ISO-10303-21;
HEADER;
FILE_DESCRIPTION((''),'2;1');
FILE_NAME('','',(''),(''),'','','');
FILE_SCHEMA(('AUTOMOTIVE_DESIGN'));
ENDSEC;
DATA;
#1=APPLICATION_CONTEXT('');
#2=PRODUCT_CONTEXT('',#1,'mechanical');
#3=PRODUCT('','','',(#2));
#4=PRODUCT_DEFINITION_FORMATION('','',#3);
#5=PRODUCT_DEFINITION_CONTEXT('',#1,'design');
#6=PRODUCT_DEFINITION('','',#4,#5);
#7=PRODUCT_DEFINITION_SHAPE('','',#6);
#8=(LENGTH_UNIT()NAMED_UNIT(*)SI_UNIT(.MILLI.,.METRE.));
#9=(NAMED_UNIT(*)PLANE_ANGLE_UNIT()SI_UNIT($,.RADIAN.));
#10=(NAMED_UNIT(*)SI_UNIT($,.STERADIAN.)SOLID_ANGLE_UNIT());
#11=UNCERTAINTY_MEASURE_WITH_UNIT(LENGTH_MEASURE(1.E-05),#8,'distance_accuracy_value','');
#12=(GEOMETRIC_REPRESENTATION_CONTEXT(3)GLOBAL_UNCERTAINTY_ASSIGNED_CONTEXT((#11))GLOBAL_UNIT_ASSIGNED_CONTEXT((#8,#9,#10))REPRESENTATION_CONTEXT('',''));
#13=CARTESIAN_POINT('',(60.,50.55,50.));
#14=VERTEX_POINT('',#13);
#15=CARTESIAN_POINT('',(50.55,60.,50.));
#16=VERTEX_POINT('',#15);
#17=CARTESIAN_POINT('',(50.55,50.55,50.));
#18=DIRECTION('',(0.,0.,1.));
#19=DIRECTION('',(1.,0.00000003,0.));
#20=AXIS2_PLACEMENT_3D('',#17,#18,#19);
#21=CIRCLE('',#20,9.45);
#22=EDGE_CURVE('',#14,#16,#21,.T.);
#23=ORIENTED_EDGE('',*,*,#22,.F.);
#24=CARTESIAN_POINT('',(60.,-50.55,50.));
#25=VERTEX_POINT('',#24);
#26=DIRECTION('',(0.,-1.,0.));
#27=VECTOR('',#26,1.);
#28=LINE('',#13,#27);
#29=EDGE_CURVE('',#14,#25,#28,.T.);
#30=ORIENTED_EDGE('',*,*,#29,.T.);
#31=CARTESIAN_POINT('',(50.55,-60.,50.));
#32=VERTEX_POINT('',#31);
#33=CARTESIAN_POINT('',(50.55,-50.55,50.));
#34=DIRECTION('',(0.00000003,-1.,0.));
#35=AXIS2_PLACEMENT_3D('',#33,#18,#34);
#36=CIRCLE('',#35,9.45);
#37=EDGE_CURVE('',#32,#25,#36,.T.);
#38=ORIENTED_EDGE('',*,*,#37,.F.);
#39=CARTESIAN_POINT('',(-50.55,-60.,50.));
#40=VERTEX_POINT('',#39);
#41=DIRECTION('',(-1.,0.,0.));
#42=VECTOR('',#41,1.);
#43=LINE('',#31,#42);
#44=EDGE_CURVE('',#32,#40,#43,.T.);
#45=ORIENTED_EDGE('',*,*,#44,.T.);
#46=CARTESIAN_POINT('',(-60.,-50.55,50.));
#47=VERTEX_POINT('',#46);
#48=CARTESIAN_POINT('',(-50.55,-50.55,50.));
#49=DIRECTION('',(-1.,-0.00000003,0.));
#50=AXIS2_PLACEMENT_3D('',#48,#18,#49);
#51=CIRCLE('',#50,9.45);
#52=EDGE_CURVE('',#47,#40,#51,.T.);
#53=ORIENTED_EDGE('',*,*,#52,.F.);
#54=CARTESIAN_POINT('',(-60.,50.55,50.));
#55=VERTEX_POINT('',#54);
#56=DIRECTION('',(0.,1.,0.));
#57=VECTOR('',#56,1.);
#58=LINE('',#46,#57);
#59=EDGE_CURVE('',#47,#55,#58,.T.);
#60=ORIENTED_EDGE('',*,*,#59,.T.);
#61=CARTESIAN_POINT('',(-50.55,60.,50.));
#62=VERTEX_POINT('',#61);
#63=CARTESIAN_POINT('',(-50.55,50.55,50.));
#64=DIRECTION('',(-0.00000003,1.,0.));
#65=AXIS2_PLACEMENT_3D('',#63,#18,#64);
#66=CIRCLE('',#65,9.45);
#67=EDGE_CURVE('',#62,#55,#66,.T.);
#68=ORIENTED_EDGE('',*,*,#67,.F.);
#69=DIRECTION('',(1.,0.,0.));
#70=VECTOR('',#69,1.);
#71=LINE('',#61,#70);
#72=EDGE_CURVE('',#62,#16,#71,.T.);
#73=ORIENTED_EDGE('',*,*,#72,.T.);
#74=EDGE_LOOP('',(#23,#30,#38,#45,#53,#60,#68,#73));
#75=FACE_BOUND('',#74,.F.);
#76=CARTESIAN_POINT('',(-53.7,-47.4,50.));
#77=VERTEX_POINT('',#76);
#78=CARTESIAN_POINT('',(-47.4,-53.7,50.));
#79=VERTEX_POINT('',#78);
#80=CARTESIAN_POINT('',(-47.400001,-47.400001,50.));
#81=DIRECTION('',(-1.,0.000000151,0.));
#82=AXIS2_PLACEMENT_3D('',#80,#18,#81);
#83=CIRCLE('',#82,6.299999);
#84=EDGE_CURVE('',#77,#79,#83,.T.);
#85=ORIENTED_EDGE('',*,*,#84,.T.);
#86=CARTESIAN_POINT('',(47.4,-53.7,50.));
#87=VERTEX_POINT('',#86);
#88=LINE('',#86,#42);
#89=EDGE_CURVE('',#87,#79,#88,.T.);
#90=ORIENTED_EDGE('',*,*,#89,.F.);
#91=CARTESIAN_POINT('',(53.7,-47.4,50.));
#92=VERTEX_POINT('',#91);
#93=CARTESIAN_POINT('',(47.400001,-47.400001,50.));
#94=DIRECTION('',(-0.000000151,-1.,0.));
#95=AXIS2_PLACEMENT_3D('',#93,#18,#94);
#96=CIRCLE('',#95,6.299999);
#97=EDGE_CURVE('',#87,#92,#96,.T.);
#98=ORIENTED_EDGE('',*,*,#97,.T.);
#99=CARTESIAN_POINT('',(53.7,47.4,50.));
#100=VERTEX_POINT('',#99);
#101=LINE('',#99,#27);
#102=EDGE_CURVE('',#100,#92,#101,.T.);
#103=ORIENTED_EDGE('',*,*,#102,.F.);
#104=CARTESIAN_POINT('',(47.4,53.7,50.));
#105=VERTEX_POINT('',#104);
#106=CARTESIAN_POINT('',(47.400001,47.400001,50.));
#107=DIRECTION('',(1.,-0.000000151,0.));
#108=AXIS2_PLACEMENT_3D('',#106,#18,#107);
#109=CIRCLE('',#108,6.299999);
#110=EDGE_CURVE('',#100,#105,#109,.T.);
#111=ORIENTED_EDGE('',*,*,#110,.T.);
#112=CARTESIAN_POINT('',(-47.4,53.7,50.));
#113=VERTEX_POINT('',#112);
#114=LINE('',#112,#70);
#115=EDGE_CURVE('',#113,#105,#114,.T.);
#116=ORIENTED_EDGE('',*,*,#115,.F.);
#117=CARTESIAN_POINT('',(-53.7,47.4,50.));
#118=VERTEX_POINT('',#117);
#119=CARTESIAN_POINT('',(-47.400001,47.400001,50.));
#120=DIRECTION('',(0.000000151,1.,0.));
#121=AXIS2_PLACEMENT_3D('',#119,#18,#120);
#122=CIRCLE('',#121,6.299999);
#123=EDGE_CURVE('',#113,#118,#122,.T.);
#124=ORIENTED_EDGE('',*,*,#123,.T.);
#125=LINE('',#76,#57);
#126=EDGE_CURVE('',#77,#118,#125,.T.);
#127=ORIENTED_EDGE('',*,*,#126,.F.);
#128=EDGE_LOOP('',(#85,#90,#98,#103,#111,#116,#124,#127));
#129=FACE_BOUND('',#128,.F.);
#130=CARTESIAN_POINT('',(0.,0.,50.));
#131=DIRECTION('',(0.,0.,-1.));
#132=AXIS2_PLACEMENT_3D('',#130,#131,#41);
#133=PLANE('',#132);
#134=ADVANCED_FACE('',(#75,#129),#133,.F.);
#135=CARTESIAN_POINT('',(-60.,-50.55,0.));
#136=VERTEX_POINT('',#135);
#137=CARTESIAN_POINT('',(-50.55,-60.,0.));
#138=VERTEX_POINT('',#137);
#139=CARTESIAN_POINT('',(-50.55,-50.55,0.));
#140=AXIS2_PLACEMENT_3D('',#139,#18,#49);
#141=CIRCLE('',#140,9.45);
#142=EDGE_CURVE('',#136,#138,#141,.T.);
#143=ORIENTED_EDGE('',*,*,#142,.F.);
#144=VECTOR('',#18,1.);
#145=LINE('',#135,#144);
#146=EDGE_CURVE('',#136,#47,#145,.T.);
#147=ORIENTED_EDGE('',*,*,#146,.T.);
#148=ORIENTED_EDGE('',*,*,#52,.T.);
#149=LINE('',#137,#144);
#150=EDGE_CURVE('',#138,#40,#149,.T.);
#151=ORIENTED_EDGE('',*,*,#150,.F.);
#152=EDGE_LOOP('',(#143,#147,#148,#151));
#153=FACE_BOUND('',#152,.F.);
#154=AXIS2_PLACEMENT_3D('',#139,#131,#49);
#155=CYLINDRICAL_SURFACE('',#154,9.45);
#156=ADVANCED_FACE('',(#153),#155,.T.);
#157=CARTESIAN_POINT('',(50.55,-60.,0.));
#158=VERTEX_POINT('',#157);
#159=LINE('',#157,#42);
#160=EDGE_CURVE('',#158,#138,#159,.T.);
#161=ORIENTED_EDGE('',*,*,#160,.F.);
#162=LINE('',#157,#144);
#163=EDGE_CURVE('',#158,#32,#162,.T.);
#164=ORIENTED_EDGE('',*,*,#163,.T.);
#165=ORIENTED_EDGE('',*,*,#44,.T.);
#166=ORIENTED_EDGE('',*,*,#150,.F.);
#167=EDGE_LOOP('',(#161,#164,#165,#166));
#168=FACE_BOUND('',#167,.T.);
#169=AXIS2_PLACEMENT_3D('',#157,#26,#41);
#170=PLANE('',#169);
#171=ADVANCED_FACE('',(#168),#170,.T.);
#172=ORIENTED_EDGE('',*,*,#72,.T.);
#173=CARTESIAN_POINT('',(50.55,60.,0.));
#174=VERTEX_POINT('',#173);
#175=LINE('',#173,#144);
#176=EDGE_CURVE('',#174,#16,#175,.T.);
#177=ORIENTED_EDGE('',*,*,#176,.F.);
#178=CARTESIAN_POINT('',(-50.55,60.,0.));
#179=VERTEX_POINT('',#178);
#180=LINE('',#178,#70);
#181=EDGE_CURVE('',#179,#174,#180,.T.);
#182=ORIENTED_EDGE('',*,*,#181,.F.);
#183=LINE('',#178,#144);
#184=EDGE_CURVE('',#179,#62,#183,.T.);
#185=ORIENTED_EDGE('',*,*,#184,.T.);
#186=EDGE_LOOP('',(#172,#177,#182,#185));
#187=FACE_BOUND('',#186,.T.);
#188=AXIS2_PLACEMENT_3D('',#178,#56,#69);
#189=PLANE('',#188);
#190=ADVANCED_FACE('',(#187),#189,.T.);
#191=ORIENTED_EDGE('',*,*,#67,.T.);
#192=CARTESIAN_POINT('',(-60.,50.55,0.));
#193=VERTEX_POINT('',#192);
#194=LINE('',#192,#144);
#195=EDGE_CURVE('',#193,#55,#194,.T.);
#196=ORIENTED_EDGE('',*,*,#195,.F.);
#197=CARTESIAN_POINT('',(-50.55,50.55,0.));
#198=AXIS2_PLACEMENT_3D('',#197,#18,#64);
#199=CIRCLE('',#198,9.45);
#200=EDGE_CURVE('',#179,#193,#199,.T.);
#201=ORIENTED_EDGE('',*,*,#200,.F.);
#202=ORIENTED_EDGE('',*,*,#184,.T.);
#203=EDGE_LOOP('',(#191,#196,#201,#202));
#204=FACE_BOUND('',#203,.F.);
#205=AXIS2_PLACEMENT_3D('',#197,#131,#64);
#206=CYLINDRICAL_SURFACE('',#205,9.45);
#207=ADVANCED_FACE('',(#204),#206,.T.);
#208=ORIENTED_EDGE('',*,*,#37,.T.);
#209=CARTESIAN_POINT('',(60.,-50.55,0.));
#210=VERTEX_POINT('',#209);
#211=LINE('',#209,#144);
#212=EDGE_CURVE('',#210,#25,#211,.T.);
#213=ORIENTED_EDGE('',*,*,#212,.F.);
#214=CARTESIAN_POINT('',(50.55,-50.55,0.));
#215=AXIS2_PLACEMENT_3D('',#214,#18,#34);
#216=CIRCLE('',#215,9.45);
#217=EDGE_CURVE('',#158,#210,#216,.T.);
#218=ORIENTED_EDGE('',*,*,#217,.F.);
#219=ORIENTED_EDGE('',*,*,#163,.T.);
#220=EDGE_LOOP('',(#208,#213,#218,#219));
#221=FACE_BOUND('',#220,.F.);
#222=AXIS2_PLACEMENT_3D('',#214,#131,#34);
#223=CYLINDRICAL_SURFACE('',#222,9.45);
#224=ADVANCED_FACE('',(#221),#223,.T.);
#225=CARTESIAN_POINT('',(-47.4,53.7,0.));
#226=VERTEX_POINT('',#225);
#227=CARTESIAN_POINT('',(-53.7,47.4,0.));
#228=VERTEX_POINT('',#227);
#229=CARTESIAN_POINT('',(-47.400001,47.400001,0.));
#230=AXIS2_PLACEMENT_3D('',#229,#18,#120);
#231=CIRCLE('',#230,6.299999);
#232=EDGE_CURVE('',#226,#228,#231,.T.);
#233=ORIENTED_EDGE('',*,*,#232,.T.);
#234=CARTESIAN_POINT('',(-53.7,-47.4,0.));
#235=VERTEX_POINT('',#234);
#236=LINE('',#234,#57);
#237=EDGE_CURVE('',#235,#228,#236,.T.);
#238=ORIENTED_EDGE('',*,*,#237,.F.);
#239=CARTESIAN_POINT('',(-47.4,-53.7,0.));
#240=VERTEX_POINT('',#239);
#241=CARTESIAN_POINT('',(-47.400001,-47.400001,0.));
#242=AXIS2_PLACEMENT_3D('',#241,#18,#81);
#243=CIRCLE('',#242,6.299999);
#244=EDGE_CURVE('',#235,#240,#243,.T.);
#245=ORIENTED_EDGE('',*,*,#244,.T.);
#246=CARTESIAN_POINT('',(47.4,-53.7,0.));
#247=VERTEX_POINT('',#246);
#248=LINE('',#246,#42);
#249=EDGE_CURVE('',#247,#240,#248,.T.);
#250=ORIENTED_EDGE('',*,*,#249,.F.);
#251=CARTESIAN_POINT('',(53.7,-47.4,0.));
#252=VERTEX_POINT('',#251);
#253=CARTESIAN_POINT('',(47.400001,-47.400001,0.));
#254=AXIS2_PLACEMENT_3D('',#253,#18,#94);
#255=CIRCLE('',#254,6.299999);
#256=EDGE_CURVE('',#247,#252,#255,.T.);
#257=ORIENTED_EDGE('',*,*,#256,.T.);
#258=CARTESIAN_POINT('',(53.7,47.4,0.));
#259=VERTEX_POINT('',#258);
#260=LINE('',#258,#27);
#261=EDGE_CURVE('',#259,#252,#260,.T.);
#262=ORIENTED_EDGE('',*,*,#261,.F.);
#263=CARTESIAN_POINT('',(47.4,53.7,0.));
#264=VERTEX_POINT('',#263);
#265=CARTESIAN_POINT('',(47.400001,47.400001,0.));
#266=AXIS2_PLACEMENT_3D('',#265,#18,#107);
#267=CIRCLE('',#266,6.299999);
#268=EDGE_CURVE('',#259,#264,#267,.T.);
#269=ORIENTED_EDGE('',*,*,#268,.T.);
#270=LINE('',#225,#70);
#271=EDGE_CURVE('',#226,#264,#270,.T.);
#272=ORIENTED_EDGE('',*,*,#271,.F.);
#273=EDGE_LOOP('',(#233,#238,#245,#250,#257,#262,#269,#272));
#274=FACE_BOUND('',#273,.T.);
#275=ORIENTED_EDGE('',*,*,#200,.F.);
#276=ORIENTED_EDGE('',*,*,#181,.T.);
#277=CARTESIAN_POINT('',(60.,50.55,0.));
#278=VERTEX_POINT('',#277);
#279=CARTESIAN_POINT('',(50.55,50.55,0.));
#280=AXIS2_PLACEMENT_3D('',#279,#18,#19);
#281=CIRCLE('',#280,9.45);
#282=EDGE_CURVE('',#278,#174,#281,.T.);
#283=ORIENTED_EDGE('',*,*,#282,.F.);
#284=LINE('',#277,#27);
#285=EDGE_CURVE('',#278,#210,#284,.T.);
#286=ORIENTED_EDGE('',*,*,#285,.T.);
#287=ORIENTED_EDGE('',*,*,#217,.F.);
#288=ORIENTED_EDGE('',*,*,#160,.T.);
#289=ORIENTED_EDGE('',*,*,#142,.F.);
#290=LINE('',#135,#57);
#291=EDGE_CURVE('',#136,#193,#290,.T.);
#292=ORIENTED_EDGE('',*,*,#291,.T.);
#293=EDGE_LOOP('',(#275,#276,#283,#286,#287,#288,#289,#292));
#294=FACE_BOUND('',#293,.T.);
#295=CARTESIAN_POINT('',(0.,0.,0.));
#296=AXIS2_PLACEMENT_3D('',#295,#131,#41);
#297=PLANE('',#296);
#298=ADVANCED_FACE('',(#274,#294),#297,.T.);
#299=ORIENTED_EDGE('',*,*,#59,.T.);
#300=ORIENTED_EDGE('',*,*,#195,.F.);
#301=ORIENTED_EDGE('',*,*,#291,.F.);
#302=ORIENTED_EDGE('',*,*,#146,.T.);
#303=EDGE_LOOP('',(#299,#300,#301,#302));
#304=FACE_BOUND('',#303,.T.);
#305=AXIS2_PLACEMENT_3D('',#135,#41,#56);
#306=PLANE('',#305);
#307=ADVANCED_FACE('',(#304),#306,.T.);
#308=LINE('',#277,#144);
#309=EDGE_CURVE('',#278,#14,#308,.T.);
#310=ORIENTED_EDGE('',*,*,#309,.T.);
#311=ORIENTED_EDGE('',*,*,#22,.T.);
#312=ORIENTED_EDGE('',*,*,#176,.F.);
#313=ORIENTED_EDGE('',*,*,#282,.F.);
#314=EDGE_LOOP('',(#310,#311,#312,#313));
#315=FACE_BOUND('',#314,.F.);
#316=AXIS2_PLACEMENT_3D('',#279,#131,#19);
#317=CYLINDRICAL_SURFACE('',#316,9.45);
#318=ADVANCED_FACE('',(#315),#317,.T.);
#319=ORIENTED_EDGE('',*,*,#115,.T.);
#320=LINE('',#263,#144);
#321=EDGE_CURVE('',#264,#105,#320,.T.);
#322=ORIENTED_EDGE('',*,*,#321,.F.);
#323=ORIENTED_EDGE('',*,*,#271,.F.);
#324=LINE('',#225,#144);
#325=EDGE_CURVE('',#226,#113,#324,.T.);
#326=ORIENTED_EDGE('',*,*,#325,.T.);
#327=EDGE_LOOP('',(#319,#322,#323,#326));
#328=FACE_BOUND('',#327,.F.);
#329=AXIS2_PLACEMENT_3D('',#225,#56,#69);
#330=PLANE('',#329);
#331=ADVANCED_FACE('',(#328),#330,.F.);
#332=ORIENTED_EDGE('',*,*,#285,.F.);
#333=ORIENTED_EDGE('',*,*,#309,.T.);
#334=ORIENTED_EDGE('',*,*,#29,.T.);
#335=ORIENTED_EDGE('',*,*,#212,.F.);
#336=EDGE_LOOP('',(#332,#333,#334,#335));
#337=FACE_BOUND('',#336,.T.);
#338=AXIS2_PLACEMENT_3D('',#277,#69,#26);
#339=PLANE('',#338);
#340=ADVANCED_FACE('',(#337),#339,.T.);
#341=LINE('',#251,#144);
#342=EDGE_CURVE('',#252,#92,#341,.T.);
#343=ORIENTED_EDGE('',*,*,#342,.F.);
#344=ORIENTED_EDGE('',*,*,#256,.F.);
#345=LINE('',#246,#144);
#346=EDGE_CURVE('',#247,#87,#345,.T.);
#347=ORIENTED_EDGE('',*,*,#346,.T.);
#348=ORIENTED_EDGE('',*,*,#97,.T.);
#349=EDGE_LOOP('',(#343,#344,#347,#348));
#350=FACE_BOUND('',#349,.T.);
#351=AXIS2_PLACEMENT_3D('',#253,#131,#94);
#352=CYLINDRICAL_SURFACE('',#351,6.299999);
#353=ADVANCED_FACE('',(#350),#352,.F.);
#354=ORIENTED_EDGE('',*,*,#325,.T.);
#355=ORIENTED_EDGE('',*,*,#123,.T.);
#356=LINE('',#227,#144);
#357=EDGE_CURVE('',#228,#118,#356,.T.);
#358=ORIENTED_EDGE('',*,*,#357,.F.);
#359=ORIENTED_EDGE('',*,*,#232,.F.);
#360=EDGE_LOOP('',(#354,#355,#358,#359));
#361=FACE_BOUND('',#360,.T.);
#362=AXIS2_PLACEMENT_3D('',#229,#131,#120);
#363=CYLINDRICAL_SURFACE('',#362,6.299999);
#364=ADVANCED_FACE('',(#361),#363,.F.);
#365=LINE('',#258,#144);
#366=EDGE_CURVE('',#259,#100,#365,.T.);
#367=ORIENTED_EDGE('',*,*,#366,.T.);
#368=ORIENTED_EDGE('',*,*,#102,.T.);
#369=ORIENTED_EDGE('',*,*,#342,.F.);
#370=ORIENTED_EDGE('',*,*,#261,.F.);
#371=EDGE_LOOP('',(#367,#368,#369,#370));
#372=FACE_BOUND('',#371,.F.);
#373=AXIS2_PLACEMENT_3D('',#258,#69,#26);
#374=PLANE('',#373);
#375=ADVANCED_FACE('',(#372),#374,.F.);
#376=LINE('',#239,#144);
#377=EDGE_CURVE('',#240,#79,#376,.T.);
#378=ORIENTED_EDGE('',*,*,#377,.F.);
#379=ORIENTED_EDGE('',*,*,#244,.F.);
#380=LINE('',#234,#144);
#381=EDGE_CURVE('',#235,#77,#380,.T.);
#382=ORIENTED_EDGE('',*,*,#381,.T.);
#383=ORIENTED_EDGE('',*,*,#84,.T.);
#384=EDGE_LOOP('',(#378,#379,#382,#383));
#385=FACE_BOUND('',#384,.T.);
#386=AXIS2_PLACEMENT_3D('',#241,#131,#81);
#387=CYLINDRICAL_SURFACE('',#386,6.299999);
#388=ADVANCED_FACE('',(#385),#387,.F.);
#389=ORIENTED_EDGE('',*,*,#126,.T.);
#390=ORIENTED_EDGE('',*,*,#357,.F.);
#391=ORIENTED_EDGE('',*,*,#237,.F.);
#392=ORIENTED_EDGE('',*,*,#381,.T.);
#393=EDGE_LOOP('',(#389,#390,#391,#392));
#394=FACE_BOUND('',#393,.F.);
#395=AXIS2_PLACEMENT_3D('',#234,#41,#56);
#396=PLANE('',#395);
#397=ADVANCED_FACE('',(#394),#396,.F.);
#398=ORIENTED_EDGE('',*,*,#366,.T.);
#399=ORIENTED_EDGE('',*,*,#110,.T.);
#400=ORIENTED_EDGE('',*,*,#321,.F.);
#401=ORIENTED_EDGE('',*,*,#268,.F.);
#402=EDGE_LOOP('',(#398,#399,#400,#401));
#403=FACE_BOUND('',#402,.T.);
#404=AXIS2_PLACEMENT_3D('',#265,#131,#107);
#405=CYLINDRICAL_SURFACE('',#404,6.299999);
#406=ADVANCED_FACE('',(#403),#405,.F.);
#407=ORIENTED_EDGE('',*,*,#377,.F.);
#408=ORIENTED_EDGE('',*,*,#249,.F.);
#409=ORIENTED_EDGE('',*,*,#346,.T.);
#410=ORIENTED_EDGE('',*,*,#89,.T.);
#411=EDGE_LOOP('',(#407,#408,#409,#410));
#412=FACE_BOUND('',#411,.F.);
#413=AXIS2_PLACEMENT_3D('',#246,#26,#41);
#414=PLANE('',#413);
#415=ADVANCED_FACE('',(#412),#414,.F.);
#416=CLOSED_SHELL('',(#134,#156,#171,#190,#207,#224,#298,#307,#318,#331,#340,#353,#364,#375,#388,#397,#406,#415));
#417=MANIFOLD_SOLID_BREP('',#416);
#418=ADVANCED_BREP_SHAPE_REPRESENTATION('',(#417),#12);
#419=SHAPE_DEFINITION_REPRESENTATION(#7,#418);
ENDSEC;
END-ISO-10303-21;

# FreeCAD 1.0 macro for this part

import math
import FreeCAD as App
import Part
import Sketcher

V = App.Vector

doc = App.newDocument("Part")
body = doc.addObject("PartDesign::Body", "Body")

# Sketch on XY plane
sketch1 = body.newObject("Sketcher::SketchObject", "Sketch")
sketch1.AttachmentSupport = (doc.getObject("XY_Plane"), [""])
sketch1.MapMode = "FlatFace"
sketch1.addGeometry([
    Part.LineSegment(V(51, 60, 0), V(-51, 60, 0)),  # 0
    Part.ArcOfCircle(Part.Circle(V(-51, 51, 0), V(0, 0, 1), 9), math.radians(90), math.radians(180)),  # 1
    Part.LineSegment(V(-60, 51, 0), V(-60, -51, 0)),  # 2
    Part.ArcOfCircle(Part.Circle(V(-51, -51, 0), V(0, 0, 1), 9), math.radians(-180), math.radians(-90)),  # 3
    Part.LineSegment(V(-51, -60, 0), V(51, -60, 0)),  # 4
    Part.ArcOfCircle(Part.Circle(V(51, -51, 0), V(0, 0, 1), 9), math.radians(-90), math.radians(0)),  # 5
    Part.LineSegment(V(60, -51, 0), V(60, 51, 0)),  # 6
    Part.ArcOfCircle(Part.Circle(V(51, 51, 0), V(0, 0, 1), 9), math.radians(0), math.radians(90)),  # 7
    Part.LineSegment(V(-47, 54, 0), V(47, 54, 0)),  # 8
    Part.ArcOfCircle(Part.Circle(V(47, 47, 0), V(0, 0, 1), 6), math.radians(0), math.radians(90)),  # 9
    Part.LineSegment(V(54, 47, 0), V(54, -47, 0)),  # 10
    Part.ArcOfCircle(Part.Circle(V(47, -47, 0), V(0, 0, 1), 6), math.radians(-90), math.radians(0)),  # 11
    Part.LineSegment(V(47, -54, 0), V(-47, -54, 0)),  # 12
    Part.ArcOfCircle(Part.Circle(V(-47, -47, 0), V(0, 0, 1), 6), math.radians(180), math.radians(270)),  # 13
    Part.LineSegment(V(-54, -47, 0), V(-54, 47, 0)),  # 14
    Part.ArcOfCircle(Part.Circle(V(-47, 47, 0), V(0, 0, 1), 6), math.radians(90), math.radians(180)),  # 15
], False)
sketch1.addConstraint([
    Sketcher.Constraint("Tangent", 0, 2, 1, 1),
    Sketcher.Constraint("Tangent", 1, 2, 2, 1),
    Sketcher.Constraint("Tangent", 2, 2, 3, 1),
    Sketcher.Constraint("Tangent", 3, 2, 4, 1),
    Sketcher.Constraint("Tangent", 4, 2, 5, 1),
    Sketcher.Constraint("Tangent", 5, 2, 6, 1),
    Sketcher.Constraint("Tangent", 6, 2, 7, 1),
    Sketcher.Constraint("Tangent", 7, 2, 0, 1),
    Sketcher.Constraint("Tangent", 8, 2, 9, 2),
    Sketcher.Constraint("Tangent", 9, 1, 10, 1),
    Sketcher.Constraint("Tangent", 10, 2, 11, 2),
    Sketcher.Constraint("Tangent", 11, 1, 12, 1),
    Sketcher.Constraint("Tangent", 12, 2, 13, 2),
    Sketcher.Constraint("Tangent", 13, 1, 14, 1),
    Sketcher.Constraint("Tangent", 14, 2, 15, 2),
    Sketcher.Constraint("Tangent", 15, 1, 8, 1),
    Sketcher.Constraint("Horizontal", 0),
    Sketcher.Constraint("Vertical", 2),
    Sketcher.Constraint("Horizontal", 4),
    Sketcher.Constraint("Vertical", 6),
    Sketcher.Constraint("Horizontal", 8),
    Sketcher.Constraint("Vertical", 10),
    Sketcher.Constraint("Horizontal", 12),
    Sketcher.Constraint("Vertical", 14),
    Sketcher.Constraint("Equal", 1, 3),
    Sketcher.Constraint("Equal", 3, 5),
    Sketcher.Constraint("Equal", 5, 7),
    Sketcher.Constraint("Equal", 9, 11),
    Sketcher.Constraint("Equal", 11, 13),
    Sketcher.Constraint("Equal", 13, 15),
    Sketcher.Constraint("Symmetric", 1, 3, 5, 3, -1, 1),
    Sketcher.Constraint("Symmetric", 9, 3, 13, 3, -1, 1),
    Sketcher.Constraint("Equal", 4, 2),
    Sketcher.Constraint("Equal", 12, 10),
    Sketcher.Constraint("Radius", 9, 6.299999),
    Sketcher.Constraint("Radius", 1, 9.45),
    Sketcher.Constraint("DistanceX", 0, 2, 0, 1, 101.1),
    Sketcher.Constraint("DistanceX", 8, 1, 8, 2, 94.8),
])
pad1 = body.newObject("PartDesign::Pad", "Pad")
pad1.Profile = sketch1
pad1.Length = 50

doc.recompute()
